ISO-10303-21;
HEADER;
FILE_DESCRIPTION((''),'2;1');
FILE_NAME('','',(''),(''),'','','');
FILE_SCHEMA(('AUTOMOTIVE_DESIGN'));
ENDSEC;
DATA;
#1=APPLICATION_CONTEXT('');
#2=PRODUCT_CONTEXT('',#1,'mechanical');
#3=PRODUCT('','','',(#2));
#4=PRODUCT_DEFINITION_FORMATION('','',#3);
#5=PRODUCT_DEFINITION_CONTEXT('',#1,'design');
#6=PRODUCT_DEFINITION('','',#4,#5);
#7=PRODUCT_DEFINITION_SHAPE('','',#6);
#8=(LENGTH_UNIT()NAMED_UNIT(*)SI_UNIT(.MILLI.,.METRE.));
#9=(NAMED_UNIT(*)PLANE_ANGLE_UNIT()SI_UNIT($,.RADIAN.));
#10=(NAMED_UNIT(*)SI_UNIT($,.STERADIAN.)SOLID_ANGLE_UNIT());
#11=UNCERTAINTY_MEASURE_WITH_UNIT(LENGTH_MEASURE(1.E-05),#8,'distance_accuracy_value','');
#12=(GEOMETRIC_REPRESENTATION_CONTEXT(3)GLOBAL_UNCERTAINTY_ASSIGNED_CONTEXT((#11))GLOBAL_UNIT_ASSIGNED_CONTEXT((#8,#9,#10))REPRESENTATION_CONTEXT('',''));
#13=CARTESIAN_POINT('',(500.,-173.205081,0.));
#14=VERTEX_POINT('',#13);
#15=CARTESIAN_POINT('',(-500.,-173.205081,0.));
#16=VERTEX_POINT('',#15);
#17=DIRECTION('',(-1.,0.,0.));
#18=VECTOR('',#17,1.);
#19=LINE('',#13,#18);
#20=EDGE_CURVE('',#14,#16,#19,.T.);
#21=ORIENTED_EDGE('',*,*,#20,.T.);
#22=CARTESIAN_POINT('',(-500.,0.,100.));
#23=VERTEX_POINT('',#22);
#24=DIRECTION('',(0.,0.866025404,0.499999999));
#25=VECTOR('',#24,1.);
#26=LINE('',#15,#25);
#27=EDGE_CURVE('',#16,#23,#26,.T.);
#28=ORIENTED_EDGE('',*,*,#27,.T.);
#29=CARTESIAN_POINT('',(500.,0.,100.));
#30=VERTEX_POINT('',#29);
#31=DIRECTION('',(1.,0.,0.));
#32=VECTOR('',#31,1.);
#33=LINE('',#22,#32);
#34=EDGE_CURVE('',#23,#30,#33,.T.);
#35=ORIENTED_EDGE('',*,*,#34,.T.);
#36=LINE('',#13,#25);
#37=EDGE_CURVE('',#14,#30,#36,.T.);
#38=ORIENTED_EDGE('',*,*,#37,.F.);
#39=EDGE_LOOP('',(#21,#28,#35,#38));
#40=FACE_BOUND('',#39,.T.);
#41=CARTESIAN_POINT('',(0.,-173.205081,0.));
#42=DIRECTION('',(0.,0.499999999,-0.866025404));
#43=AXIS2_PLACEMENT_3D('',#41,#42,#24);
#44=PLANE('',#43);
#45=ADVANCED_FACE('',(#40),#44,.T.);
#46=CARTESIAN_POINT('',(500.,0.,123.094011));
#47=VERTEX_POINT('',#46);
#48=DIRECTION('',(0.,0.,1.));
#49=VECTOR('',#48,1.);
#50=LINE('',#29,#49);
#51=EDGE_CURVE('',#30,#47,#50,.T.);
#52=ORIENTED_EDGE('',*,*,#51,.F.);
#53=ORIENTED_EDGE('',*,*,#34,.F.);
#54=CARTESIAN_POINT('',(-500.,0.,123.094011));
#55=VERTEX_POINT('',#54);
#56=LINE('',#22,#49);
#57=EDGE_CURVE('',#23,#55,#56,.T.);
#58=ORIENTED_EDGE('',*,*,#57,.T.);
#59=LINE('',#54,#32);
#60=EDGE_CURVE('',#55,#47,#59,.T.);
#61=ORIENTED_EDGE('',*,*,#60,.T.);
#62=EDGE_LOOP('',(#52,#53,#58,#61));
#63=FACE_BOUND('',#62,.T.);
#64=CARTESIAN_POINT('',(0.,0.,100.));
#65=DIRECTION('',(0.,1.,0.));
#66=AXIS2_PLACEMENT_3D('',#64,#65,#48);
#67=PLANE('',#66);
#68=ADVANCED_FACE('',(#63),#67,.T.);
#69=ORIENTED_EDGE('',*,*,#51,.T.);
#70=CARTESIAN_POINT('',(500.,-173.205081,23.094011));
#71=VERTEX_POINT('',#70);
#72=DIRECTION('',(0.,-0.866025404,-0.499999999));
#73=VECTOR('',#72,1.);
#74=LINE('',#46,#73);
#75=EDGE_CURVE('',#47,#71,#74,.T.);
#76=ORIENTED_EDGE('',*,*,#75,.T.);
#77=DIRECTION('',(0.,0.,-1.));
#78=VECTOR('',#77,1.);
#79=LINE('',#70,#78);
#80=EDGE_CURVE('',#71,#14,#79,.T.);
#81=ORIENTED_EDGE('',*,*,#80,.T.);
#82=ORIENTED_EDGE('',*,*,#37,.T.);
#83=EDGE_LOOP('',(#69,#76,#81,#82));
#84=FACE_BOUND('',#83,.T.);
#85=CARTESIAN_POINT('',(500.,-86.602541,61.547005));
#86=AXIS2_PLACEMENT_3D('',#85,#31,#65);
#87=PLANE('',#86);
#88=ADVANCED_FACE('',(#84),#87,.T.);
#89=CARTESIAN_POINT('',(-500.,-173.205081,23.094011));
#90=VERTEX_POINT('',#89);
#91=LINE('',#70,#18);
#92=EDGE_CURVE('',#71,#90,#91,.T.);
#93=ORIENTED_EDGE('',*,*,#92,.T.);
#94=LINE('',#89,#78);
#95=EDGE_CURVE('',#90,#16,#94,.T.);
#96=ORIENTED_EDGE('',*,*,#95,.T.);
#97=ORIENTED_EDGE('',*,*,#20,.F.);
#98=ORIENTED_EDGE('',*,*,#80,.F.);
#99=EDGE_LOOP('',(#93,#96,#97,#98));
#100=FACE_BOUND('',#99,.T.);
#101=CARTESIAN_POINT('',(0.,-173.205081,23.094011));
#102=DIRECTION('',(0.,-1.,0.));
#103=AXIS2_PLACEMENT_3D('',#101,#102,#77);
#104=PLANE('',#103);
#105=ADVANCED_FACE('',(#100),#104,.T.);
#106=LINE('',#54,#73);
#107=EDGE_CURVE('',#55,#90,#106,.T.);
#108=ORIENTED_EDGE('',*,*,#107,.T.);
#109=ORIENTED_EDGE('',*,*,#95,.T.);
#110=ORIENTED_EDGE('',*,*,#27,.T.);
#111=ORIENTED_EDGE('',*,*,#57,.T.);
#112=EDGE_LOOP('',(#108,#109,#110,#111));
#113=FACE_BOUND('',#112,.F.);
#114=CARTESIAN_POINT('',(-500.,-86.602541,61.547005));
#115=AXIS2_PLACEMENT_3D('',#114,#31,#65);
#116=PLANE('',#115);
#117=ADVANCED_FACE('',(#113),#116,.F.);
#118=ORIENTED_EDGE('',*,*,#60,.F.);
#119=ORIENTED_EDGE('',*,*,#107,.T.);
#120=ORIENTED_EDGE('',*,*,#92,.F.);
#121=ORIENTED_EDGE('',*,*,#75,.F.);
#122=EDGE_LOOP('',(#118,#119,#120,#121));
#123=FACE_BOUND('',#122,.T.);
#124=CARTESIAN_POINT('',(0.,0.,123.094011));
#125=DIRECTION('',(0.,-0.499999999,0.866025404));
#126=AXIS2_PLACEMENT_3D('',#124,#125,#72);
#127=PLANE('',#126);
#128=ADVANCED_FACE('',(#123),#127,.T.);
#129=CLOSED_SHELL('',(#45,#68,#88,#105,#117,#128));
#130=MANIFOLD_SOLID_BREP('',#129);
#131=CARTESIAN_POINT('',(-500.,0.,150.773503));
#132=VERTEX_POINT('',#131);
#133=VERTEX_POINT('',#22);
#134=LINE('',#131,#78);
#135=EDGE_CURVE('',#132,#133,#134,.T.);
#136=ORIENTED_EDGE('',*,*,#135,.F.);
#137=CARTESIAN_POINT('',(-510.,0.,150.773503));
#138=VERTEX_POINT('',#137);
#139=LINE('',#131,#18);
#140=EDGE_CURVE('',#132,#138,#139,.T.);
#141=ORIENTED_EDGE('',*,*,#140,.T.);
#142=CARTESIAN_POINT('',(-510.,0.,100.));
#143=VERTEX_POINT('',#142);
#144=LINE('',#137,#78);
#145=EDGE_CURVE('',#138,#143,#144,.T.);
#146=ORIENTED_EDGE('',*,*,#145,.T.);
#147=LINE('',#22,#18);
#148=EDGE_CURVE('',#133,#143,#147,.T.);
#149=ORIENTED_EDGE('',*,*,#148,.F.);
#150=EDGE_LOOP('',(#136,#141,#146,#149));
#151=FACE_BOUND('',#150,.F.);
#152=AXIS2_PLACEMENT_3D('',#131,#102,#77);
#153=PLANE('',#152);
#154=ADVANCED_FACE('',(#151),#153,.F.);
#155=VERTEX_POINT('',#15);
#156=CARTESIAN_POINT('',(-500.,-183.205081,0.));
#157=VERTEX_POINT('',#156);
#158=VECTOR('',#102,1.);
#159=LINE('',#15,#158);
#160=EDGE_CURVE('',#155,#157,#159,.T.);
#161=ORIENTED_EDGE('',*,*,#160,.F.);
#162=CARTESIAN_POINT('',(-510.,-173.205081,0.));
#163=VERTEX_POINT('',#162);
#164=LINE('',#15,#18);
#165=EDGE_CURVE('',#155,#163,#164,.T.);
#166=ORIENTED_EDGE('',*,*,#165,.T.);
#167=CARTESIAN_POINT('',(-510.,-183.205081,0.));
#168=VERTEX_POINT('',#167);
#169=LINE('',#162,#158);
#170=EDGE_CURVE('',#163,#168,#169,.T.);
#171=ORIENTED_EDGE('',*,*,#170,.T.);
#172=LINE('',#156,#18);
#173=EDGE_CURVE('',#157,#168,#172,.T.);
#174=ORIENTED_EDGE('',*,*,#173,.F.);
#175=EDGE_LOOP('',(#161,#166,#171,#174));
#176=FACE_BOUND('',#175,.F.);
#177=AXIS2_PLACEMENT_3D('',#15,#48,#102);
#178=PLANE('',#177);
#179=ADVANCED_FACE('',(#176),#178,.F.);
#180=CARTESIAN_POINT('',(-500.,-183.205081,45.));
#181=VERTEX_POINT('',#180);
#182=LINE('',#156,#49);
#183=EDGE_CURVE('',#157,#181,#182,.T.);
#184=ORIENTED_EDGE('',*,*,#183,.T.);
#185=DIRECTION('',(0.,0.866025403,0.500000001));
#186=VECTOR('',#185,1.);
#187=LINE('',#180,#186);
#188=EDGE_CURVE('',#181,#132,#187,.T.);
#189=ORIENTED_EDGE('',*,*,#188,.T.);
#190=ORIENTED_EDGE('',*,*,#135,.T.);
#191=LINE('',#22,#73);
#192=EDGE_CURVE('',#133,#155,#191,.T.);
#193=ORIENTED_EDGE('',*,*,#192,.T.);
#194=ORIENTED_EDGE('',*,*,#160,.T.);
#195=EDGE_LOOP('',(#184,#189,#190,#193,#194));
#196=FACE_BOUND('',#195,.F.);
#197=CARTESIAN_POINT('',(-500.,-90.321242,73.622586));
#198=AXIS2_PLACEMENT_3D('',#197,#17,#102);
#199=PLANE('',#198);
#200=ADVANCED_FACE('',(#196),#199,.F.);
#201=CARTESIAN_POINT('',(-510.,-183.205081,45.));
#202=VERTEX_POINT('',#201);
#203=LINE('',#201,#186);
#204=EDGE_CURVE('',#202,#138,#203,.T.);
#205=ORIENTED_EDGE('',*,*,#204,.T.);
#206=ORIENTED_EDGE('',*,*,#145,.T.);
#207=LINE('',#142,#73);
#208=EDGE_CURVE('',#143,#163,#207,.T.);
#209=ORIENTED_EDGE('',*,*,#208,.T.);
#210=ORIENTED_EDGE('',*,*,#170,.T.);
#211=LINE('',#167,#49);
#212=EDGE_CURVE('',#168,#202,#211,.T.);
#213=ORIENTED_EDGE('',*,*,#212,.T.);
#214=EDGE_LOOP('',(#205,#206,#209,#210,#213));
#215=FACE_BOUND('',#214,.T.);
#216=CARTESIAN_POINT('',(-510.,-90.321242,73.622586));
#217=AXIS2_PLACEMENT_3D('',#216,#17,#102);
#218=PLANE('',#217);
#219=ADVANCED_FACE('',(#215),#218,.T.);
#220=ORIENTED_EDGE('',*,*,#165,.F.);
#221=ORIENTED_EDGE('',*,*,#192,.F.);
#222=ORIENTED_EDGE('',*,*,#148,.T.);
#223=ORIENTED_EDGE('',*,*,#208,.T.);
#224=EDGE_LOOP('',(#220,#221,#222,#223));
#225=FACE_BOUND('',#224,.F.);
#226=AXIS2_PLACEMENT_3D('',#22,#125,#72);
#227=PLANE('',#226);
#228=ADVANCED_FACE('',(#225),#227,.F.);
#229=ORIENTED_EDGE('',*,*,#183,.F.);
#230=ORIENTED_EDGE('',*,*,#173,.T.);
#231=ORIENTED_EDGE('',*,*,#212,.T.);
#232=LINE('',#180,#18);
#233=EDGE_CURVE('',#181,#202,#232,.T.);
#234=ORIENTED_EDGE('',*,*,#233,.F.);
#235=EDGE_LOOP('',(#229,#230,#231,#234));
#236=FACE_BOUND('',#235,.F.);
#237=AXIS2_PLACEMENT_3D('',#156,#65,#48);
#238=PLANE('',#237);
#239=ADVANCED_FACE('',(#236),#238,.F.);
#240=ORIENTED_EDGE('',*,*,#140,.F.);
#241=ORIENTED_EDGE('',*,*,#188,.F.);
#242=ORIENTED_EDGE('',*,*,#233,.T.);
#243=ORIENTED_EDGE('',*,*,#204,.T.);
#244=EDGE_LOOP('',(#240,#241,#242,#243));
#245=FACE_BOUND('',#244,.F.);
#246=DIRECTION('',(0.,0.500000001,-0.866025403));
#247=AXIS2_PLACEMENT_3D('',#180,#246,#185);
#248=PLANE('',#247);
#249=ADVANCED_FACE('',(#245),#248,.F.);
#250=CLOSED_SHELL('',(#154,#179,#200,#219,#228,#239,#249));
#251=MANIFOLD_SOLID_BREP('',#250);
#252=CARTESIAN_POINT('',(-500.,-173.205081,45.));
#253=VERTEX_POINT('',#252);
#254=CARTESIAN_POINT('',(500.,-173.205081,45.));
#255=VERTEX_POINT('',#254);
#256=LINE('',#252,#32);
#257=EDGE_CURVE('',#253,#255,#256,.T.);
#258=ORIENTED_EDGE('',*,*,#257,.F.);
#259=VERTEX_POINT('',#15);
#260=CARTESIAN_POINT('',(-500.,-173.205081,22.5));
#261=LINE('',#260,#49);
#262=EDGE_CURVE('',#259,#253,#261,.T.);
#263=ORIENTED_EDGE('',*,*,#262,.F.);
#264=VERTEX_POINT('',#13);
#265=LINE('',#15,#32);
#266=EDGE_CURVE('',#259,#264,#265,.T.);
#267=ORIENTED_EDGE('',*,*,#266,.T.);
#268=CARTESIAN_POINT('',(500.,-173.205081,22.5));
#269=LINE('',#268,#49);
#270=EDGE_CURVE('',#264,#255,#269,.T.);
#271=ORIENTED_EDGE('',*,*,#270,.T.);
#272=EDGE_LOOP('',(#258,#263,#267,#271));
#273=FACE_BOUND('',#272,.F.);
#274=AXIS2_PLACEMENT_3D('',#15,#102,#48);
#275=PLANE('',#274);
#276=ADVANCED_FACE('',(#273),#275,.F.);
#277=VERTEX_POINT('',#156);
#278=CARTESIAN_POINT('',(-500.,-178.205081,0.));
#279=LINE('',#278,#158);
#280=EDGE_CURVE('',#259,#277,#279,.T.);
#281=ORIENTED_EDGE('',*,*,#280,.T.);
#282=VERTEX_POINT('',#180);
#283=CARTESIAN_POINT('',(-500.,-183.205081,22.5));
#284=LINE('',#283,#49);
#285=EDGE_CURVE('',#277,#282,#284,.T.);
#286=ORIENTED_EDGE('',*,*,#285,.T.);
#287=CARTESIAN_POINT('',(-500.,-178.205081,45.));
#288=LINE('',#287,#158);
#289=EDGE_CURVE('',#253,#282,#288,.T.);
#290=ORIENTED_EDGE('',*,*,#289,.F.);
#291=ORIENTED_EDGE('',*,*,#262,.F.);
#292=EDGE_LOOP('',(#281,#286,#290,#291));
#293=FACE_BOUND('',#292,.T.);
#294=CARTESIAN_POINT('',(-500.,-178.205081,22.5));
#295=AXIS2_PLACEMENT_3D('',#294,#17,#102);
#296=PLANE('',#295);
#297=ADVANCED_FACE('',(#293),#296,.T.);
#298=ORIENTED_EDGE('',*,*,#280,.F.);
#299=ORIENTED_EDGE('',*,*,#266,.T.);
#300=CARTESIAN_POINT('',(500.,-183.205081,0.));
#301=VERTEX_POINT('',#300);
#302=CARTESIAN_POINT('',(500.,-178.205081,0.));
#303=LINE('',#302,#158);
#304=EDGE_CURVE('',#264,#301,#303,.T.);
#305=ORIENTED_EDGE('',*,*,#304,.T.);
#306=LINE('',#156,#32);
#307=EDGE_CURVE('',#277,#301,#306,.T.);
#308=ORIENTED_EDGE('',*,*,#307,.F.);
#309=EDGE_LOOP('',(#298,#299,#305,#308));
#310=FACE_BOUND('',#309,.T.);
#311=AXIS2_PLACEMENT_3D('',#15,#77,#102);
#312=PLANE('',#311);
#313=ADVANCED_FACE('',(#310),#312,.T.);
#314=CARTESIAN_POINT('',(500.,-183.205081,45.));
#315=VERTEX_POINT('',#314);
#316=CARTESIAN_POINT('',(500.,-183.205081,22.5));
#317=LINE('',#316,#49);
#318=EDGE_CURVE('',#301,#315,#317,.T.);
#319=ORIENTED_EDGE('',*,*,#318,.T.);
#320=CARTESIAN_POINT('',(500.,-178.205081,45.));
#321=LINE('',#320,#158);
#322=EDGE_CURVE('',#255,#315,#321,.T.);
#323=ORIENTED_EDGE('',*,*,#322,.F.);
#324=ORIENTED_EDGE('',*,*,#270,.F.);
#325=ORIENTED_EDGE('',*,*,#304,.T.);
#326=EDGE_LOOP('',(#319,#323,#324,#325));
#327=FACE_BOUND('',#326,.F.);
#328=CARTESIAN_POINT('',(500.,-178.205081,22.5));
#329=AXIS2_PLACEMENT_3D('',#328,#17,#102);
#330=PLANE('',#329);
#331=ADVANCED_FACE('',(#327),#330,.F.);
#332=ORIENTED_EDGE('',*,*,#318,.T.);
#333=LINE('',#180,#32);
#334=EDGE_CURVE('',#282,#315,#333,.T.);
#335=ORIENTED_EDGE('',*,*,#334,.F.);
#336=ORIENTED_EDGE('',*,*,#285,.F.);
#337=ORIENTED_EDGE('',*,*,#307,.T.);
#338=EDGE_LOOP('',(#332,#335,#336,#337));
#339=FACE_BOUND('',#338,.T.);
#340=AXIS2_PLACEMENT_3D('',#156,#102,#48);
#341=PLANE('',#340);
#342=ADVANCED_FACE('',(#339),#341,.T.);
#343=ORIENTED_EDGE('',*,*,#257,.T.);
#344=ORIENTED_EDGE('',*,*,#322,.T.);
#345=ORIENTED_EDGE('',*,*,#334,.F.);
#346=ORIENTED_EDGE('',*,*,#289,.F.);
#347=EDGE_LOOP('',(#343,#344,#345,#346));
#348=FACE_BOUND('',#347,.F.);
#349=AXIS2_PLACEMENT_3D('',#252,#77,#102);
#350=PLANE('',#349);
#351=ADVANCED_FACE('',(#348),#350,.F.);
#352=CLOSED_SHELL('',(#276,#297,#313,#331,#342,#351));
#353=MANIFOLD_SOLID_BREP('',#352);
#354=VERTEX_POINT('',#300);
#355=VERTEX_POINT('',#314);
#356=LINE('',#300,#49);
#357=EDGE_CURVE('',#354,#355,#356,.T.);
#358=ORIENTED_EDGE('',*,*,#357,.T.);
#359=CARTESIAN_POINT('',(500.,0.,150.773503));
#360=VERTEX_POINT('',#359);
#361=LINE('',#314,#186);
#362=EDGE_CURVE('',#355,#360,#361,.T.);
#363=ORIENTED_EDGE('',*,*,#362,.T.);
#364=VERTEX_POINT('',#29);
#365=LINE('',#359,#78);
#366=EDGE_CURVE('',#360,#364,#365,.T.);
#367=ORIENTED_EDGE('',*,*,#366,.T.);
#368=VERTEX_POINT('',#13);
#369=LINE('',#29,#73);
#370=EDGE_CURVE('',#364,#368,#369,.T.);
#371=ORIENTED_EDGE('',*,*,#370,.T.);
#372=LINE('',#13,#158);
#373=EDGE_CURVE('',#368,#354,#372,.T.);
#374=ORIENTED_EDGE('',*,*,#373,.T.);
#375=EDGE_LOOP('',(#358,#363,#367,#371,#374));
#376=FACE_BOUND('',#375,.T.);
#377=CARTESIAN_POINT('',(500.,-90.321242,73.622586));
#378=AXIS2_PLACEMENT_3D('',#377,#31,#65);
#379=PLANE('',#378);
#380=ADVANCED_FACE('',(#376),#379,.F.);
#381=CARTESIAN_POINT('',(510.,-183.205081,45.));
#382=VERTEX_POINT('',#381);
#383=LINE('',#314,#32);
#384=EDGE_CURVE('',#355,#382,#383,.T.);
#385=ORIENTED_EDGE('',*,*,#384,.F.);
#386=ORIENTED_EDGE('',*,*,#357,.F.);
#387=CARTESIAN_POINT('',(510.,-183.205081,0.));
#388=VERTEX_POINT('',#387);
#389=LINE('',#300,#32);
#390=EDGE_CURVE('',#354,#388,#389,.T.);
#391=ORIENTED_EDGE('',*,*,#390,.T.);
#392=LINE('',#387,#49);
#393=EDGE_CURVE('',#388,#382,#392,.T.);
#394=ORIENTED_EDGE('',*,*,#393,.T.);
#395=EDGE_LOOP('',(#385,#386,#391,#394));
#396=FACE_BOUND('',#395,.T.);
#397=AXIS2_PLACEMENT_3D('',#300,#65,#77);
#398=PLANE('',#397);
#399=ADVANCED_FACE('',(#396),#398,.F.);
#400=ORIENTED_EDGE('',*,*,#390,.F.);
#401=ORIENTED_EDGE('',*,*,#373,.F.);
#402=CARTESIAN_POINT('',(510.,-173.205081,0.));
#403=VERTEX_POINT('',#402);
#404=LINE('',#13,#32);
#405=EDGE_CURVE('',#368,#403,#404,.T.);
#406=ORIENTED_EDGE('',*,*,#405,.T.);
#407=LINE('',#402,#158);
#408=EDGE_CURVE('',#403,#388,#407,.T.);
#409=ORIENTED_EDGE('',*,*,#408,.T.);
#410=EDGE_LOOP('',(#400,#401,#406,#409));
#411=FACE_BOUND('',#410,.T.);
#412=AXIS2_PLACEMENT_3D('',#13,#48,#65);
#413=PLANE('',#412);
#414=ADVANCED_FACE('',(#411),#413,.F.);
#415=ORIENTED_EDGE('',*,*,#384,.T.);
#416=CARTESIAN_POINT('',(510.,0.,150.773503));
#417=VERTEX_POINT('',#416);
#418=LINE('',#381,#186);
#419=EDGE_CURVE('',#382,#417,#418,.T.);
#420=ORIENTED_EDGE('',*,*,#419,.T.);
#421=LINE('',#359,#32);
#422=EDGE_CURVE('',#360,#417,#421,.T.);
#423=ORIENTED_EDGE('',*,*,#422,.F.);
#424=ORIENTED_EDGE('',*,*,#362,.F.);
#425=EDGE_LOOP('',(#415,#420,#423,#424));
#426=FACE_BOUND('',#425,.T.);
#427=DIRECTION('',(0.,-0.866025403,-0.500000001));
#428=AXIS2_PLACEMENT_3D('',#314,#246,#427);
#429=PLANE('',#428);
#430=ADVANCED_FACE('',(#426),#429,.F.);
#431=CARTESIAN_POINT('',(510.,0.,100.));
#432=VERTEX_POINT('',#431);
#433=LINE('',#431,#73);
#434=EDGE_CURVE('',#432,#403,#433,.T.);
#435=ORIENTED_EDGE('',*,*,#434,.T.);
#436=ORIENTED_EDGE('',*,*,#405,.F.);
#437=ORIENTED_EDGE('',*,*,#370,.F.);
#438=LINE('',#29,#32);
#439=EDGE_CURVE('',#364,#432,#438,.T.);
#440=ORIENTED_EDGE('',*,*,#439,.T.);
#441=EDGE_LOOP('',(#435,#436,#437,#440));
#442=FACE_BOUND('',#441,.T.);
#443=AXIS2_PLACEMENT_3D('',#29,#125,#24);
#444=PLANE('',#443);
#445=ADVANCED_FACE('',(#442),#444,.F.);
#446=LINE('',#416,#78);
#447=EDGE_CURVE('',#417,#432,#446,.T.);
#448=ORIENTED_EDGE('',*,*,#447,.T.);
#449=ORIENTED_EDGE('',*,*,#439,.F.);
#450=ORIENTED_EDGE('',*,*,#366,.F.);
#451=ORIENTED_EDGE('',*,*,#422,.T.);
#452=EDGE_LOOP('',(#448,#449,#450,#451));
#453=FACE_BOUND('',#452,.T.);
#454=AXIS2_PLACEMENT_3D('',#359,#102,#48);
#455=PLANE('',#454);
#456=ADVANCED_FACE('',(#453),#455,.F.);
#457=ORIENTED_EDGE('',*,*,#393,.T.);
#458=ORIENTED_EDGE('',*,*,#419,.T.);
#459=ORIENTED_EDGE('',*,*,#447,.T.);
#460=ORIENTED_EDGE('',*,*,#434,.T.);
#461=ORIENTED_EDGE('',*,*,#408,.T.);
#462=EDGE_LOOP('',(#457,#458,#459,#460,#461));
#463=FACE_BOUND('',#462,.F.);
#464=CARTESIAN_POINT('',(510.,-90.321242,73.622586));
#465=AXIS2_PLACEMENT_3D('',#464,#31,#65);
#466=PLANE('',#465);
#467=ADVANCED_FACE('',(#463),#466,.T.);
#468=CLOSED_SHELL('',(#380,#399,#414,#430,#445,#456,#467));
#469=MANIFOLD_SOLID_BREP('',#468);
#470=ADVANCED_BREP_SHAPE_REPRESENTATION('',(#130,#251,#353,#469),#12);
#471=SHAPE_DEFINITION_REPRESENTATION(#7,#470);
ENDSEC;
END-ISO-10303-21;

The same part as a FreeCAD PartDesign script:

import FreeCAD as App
import Part
import Sketcher
Q = App.Units.Quantity

doc = App.newDocument("Part")
body = doc.addObject("PartDesign::Body", "Body")

sketch1 = doc.addObject("Sketcher::SketchObject", "Sketch")
body.addObject(sketch1)
sketch1.AttachmentSupport = (doc.YZ_Plane, [""])
sketch1.MapMode = "FlatFace"
sketch1.addGeometry([
    Part.LineSegment(App.Vector(-173, 0, 0), App.Vector(0, 100, 0)),
    Part.LineSegment(App.Vector(0, 100, 0), App.Vector(0, 123, 0)),
    Part.LineSegment(App.Vector(0, 123, 0), App.Vector(-173, 23, 0)),
    Part.LineSegment(App.Vector(-173, 23, 0), App.Vector(-173, 0, 0)),
], False)
sketch1.addConstraint([
    Sketcher.Constraint("Coincident", 0, 2, 1, 1),
    Sketcher.Constraint("Coincident", 1, 2, 2, 1),
    Sketcher.Constraint("Coincident", 2, 2, 3, 1),
    Sketcher.Constraint("Coincident", 3, 2, 0, 1),
    Sketcher.Constraint("Vertical", 1),
    Sketcher.Constraint("Vertical", 3),
    Sketcher.Constraint("PointOnObject", 0, 2, -2),
    Sketcher.Constraint("PointOnObject", 3, 2, -1),
    Sketcher.Constraint("Parallel", 0, 2),
    Sketcher.Constraint("Angle", 0, Q("30 deg")),
    Sketcher.Constraint("Distance", 0, 200.0),
    Sketcher.Constraint("DistanceY", 1, 1, 1, 2, 23.094011),
])
pad1 = doc.addObject("PartDesign::Pad", "Pad")
body.addObject(pad1)
pad1.Profile = sketch1
pad1.Length = 1000
pad1.Midplane = True
body2 = doc.addObject("PartDesign::Body", "Body001")

sketch2 = doc.addObject("Sketcher::SketchObject", "Sketch001")
body2.addObject(sketch2)
sketch2.AttachmentSupport = (doc.getObject("YZ_Plane001"), [""])
sketch2.MapMode = "FlatFace"
sketch2.AttachmentOffset = App.Placement(App.Vector(0, 0, -500), App.Rotation())
sketch2.addGeometry([
    Part.LineSegment(App.Vector(-173, 45, 0), App.Vector(-173, 0, 0)),
    Part.LineSegment(App.Vector(-173, 0, 0), App.Vector(-183, 0, 0)),
    Part.LineSegment(App.Vector(-183, 0, 0), App.Vector(-183, 45, 0)),
    Part.LineSegment(App.Vector(-183, 45, 0), App.Vector(-173, 45, 0)),
], False)
sketch2.addConstraint([
    Sketcher.Constraint("Coincident", 0, 2, 1, 1),
    Sketcher.Constraint("Coincident", 1, 2, 2, 1),
    Sketcher.Constraint("Coincident", 2, 2, 3, 1),
    Sketcher.Constraint("Coincident", 3, 2, 0, 1),
    Sketcher.Constraint("Vertical", 0),
    Sketcher.Constraint("Horizontal", 1),
    Sketcher.Constraint("Vertical", 2),
    Sketcher.Constraint("Horizontal", 3),
    Sketcher.Constraint("PointOnObject", 0, 2, -1),
    Sketcher.Constraint("DistanceX", 1, 2, 1, 1, 10.0),
    Sketcher.Constraint("DistanceY", 0, 2, 0, 1, 45.0),
    Sketcher.Constraint("DistanceX", 0, 2, -1, 1, 173.205081),
])
pad2 = doc.addObject("PartDesign::Pad", "Pad001")
body2.addObject(pad2)
pad2.Profile = sketch2
pad2.Length = 1000
body3 = doc.addObject("PartDesign::Body", "Body002")

sketch3 = doc.addObject("Sketcher::SketchObject", "Sketch002")
body3.addObject(sketch3)
sketch3.AttachmentSupport = (doc.getObject("YZ_Plane002"), [""])
sketch3.MapMode = "FlatFace"
sketch3.AttachmentOffset = App.Placement(App.Vector(0, 0, -500), App.Rotation())
sketch3.addGeometry([
    Part.LineSegment(App.Vector(0, 151, 0), App.Vector(0, 100, 0)),
    Part.LineSegment(App.Vector(0, 100, 0), App.Vector(-173, 0, 0)),
    Part.LineSegment(App.Vector(-173, 0, 0), App.Vector(-183, 0, 0)),
    Part.LineSegment(App.Vector(-183, 0, 0), App.Vector(-183, 45, 0)),
    Part.LineSegment(App.Vector(-183, 45, 0), App.Vector(0, 151, 0)),
], False)
sketch3.addConstraint([
    Sketcher.Constraint("Coincident", 0, 2, 1, 1),
    Sketcher.Constraint("Coincident", 1, 2, 2, 1),
    Sketcher.Constraint("Coincident", 2, 2, 3, 1),
    Sketcher.Constraint("Coincident", 3, 2, 4, 1),
    Sketcher.Constraint("Coincident", 4, 2, 0, 1),
    Sketcher.Constraint("Vertical", 0),
    Sketcher.Constraint("Horizontal", 2),
    Sketcher.Constraint("Vertical", 3),
    Sketcher.Constraint("PointOnObject", 0, 2, -2),
    Sketcher.Constraint("PointOnObject", 1, 2, -1),
    Sketcher.Constraint("Parallel", 1, 4),
    Sketcher.Constraint("DistanceX", 2, 2, 2, 1, 10.0),
    Sketcher.Constraint("DistanceY", 3, 1, 3, 2, 45.0),
    Sketcher.Constraint("Angle", 1, Q("-150 deg")),
    Sketcher.Constraint("Distance", 1, 200.0),
])
pad3 = doc.addObject("PartDesign::Pad", "Pad002")
body3.addObject(pad3)
pad3.Profile = sketch3
pad3.Length = 10
pad3.Reversed = True
body4 = doc.addObject("PartDesign::Body", "Body003")
doc.recompute()

mirroring = doc.addObject("Part::Mirroring", "Mirroring")
mirroring.Source = body3
mirroring.Base = App.Vector(0, 0, 0)
mirroring.Normal = App.Vector(1, 0, 0)
body4.BaseFeature = mirroring
doc.recompute()
mirroring.Visibility = False

doc.recompute()
